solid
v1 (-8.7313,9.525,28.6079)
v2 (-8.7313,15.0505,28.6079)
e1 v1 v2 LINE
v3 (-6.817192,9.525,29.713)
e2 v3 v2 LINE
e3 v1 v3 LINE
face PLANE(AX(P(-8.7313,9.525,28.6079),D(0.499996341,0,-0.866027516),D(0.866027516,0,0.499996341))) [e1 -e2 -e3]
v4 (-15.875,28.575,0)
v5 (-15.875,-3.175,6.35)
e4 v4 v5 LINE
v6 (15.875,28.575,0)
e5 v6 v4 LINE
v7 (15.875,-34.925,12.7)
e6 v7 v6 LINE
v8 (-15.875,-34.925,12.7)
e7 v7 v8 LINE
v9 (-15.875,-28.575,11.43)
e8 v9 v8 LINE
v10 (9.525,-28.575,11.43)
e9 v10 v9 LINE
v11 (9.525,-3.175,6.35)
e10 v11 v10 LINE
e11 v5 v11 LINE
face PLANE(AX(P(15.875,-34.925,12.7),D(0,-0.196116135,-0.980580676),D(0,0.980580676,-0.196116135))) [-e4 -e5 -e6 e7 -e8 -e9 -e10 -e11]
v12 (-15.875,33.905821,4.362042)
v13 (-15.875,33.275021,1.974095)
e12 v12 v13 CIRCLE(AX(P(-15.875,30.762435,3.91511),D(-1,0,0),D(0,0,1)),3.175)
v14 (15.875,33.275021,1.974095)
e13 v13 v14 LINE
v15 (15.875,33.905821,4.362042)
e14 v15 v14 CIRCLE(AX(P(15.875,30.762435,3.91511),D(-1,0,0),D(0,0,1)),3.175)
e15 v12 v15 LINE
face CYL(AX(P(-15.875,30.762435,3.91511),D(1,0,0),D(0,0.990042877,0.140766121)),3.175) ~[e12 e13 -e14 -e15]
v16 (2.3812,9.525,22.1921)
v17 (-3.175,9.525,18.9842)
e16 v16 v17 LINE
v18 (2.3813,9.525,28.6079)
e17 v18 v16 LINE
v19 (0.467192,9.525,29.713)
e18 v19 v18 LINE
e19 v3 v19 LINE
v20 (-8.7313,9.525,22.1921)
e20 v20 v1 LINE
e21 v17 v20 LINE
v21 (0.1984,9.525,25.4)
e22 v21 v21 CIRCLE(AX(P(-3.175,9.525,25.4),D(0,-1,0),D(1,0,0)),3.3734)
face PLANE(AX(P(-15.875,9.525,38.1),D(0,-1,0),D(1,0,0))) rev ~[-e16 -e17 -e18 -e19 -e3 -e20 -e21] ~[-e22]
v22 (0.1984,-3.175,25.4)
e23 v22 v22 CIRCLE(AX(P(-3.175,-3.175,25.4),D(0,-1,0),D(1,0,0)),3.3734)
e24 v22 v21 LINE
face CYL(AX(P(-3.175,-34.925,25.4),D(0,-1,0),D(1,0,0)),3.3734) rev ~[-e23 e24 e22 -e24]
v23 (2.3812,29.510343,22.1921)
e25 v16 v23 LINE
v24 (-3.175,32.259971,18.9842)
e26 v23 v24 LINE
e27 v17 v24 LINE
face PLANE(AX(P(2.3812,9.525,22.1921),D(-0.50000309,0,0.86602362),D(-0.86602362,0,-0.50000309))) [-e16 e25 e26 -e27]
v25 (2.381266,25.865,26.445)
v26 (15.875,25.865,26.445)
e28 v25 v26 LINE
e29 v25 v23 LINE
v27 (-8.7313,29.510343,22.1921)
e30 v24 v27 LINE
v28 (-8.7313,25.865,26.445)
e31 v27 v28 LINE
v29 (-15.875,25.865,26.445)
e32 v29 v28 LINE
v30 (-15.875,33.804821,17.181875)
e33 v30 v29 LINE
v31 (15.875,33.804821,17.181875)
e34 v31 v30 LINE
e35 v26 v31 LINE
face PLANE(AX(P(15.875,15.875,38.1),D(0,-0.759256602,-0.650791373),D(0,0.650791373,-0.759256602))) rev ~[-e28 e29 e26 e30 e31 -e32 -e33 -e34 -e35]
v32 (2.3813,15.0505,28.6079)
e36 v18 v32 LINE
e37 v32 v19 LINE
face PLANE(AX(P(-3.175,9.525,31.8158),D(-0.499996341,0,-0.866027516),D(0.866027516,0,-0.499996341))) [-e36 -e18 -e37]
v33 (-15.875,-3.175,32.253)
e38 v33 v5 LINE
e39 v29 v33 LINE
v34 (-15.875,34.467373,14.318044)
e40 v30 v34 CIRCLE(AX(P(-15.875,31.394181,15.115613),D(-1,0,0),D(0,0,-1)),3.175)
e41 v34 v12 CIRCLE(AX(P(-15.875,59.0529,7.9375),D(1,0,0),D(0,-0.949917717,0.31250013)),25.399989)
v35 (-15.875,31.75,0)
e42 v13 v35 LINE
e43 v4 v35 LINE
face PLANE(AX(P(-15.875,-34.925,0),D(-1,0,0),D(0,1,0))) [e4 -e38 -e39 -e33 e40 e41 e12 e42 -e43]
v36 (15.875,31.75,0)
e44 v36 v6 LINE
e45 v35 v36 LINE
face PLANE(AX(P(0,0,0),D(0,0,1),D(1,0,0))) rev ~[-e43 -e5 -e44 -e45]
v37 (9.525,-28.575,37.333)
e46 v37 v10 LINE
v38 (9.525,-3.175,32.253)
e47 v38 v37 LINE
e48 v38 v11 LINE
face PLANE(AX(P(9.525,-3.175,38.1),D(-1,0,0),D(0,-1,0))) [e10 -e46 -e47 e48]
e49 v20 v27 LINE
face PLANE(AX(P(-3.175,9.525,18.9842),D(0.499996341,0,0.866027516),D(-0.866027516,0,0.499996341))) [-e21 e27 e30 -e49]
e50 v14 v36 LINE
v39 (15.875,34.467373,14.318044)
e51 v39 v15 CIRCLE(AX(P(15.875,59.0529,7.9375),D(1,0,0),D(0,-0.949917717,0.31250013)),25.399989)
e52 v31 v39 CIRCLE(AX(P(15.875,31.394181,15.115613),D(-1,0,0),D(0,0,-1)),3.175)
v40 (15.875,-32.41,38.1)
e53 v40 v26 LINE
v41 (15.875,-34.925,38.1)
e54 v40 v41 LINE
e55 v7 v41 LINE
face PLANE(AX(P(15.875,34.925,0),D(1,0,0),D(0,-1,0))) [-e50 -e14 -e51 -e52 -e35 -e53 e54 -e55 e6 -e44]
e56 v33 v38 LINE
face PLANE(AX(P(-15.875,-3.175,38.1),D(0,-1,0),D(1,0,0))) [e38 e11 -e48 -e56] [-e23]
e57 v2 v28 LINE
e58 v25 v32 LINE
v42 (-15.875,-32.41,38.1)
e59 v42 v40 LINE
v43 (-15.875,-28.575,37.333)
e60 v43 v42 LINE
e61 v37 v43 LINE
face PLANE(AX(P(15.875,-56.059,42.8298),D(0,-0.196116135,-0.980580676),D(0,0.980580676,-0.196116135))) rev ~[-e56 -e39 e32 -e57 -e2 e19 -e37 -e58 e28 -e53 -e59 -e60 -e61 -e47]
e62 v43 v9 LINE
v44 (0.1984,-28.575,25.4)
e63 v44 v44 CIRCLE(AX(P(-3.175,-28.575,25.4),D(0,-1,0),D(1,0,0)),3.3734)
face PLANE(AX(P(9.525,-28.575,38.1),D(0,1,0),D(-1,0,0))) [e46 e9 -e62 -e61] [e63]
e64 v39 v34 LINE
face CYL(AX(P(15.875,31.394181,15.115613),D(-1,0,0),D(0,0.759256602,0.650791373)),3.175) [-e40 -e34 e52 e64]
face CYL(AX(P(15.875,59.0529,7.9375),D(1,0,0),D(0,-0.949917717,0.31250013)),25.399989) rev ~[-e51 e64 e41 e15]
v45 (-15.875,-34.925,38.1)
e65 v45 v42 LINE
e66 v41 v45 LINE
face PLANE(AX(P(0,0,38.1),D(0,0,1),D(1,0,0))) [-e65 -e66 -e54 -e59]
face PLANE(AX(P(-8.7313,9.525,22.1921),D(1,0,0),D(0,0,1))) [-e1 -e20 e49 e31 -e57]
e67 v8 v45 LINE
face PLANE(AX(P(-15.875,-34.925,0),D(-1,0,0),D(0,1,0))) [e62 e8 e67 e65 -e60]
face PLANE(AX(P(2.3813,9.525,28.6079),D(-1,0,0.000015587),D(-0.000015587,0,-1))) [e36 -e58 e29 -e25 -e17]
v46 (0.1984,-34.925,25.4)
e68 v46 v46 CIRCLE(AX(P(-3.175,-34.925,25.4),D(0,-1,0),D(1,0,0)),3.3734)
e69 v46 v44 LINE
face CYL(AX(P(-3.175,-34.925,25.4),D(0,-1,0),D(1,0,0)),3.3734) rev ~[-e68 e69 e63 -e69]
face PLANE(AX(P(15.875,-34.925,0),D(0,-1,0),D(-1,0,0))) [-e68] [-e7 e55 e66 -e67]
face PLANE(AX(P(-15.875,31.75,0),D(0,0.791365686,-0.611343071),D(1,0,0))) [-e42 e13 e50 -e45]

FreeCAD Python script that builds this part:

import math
import FreeCAD as App
import Part
import Sketcher
Q = App.Units.Quantity


def edges_at(feature, points):
    """Names of the edges that pass closest to the given points."""
    edges = feature.Shape.Edges
    near = lambda p: min(range(len(edges)), key=lambda i: edges[i].distToShape(Part.Vertex(*p))[0])
    return sorted({f"Edge{near(p) + 1}" for p in points})


def add_polygon(sketch, points):
    """Adds a closed chain of lines whose ends are joined by coincident constraints."""
    first, n = sketch.GeometryCount, len(points)
    for a, b in zip(points, points[1:] + points[:1]):
        sketch.addGeometry(Part.LineSegment(App.Vector(*a, 0), App.Vector(*b, 0)), False)
    for i in range(n):
        sketch.addConstraint(Sketcher.Constraint("Coincident", first + i, 2, first + (i + 1) % n, 1))

doc = App.newDocument("Part")
body = doc.addObject("PartDesign::Body", "Body")

sketch1 = body.newObject("Sketcher::SketchObject", "Sketch")
sketch1.AttachmentSupport = (doc.getObject("XY_Plane"), [""])
sketch1.MapMode = "FlatFace"
add_polygon(sketch1, [(-16, -35), (16, -35), (16, 35), (-16, 35)])
sketch1.addConstraint([
    Sketcher.Constraint("Horizontal", 0),
    Sketcher.Constraint("Vertical", 1),
    Sketcher.Constraint("Horizontal", 2),
    Sketcher.Constraint("Vertical", 3),
    Sketcher.Constraint("Symmetric", 0, 2, 2, 2, -1, 1),
    Sketcher.Constraint("DistanceX", 0, 1, 0, 2, Q("1.25 in")),
    Sketcher.Constraint("DistanceY", 1, 1, 1, 2, Q("2.75 in")),
])
pad1 = body.newObject("PartDesign::Pad", "Pad")
pad1.Profile = sketch1
pad1.Length = Q("1.5 in")

sketch2 = body.newObject("Sketcher::SketchObject", "Sketch001")
sketch2.AttachmentSupport = (doc.getObject("XY_Plane"), [""])
sketch2.MapMode = "FlatFace"
sketch2.AttachmentOffset = App.Placement(App.Vector(0, 0, 1.5 * 25.4), App.Rotation())
add_polygon(sketch2, [(-16, -29), (10, -29), (10, -3), (-16, -3)])
sketch2.addConstraint([
    Sketcher.Constraint("Horizontal", 0),
    Sketcher.Constraint("Vertical", 1),
    Sketcher.Constraint("Horizontal", 2),
    Sketcher.Constraint("Vertical", 3),
    Sketcher.Constraint("Equal", 2, 1),
    Sketcher.Constraint("DistanceX", 0, 1, 0, 2, Q("1 in")),
    Sketcher.Constraint("DistanceX", -1, 1, 0, 2, Q("0.375 in")),
    Sketcher.Constraint("DistanceY", 0, 2, -1, 1, Q("1.125 in")),
])
pocket1 = body.newObject("PartDesign::Pocket", "Pocket")
pocket1.Profile = sketch2
pocket1.Type = "ThroughAll"

sketch3 = body.newObject("Sketcher::SketchObject", "Sketch002")
sketch3.AttachmentSupport = (doc.getObject("YZ_Plane"), [""])
sketch3.MapMode = "FlatFace"
sketch3.AttachmentOffset = App.Placement(App.Vector(0, 0, 0.625 * 25.4), App.Rotation())
add_polygon(sketch3, [(35, 16), (35, 38), (16, 38)])
sketch3.addGeometry(Part.LineSegment(App.Vector(35, 0, 0), App.Vector(35, 16, 0)), False)
sketch3.addGeometry(Part.ArcOfCircle(Part.Circle(App.Vector(59, 8, 0), App.Vector(0, 0, 1), 25), math.radians(162), math.radians(198)), False)
sketch3.addConstraint([
    Sketcher.Constraint("Coincident", 3, 1, 4, 2),
    Sketcher.Constraint("Coincident", 4, 1, 3, 2),
    Sketcher.Constraint("Vertical", 0),
    Sketcher.Constraint("Horizontal", 1),
    Sketcher.Constraint("Vertical", 3),
    Sketcher.Constraint("Coincident", 4, 1, 2, 2),
    Sketcher.Constraint("PointOnObject", 3, 1, -1),
    Sketcher.Constraint("Radius", 4, Q("1 in")),
    Sketcher.Constraint("DistanceX", 1, 2, 1, 1, Q("0.75 in")),
    Sketcher.Constraint("DistanceY", 3, 1, 3, 2, Q("0.625 in")),
    Sketcher.Constraint("DistanceX", -1, 1, 1, 2, Q("0.625 in")),
    Sketcher.Constraint("DistanceY", -1, 1, 0, 2, Q("1.5 in")),
])
pocket2 = body.newObject("PartDesign::Pocket", "Pocket001")
pocket2.Profile = sketch3
pocket2.Type = "ThroughAll"

sketch4 = body.newObject("Sketcher::SketchObject", "Sketch003")
sketch4.AttachmentSupport = (doc.getObject("XZ_Plane"), [""])
sketch4.MapMode = "FlatFace"
sketch4.AttachmentOffset = App.Placement(App.Vector(0, 0, 1.375 * 25.4), App.Rotation())
sketch4.addGeometry(Part.Circle(App.Vector(-3.2, 25.4, 0), App.Vector(0, 0, 1), 3.4), False)
sketch4.addConstraint([
    Sketcher.Constraint("Diameter", 0, Q("0.265622 in")),
    Sketcher.Constraint("DistanceY", -1, 1, 0, 3, Q("1 in")),
    Sketcher.Constraint("DistanceX", 0, 3, -1, 1, Q("0.125 in")),
])
pocket3 = body.newObject("PartDesign::Pocket", "Pocket002")
pocket3.Profile = sketch4
pocket3.Type = "ThroughAll"

sketch5 = body.newObject("Sketcher::SketchObject", "Sketch004")
sketch5.AttachmentSupport = (doc.getObject("XZ_Plane"), [""])
sketch5.MapMode = "FlatFace"
sketch5.AttachmentOffset = App.Placement(App.Vector(0, 0, -0.375 * 25.4), App.Rotation())
add_polygon(sketch5, [(-3, 32), (-9, 29), (-9, 22), (-3, 19), (2, 22), (2, 29)])
sketch5.addConstraint([
    Sketcher.Constraint("Vertical", 1),
    Sketcher.Constraint("Vertical", 4),
    Sketcher.Constraint("Parallel", 0, 3),
    Sketcher.Constraint("Parallel", 2, 5),
    Sketcher.Constraint("Horizontal", 1, 2, 3, 2),
    Sketcher.Constraint("Horizontal", 0, 2, 4, 2),
    Sketcher.Constraint("Vertical", 2, 2, 5, 2),
    Sketcher.Constraint("Angle", 0, Q("-150.0002 deg")),
    Sketcher.Constraint("DistanceX", 1, 2, 3, 2, Q("0.4375 in")),
    Sketcher.Constraint("DistanceY", 1, 2, 1, 1, Q("0.2526 in")),
    Sketcher.Constraint("DistanceX", 0, 2, -1, 1, Q("0.343752 in")),
    Sketcher.Constraint("DistanceY", -1, 1, 0, 2, Q("1.1263 in")),
])
pocket4 = body.newObject("PartDesign::Pocket", "Pocket003")
pocket4.Profile = sketch5
pocket4.Length = Q("1.5 in")
doc.recompute()

fillet = body.newObject("PartDesign::Fillet", "Fillet")
fillet.Base = (pocket4, edges_at(pocket4, [(0, 34.925, 15.875)]))
fillet.Radius = Q("0.125 in")
doc.recompute()

chamfer = body.newObject("PartDesign::Chamfer", "Chamfer")
chamfer.Base = (fillet, edges_at(fillet, [(0, 34.925, 0)]))
chamfer.Size = Q("0.125 in")
doc.recompute()

fillet2 = body.newObject("PartDesign::Fillet", "Fillet001")
fillet2.Base = (chamfer, edges_at(chamfer, [(0, 34.123, 3.072)]))
fillet2.Radius = Q("0.125 in")

sketch6 = body.newObject("Sketcher::SketchObject", "Sketch005")
sketch6.AttachmentSupport = (doc.getObject("YZ_Plane"), [""])
sketch6.MapMode = "FlatFace"
sketch6.AttachmentOffset = App.Placement(App.Vector(0, 0, 0.625 * 25.4), App.Rotation())
add_polygon(sketch6, [(29, 0), (-35, 13), (-35, 0)])
add_polygon(sketch6, [(-51, 71), (-56, 43), (72, 17), (77, 45)])
sketch6.addConstraint([
    Sketcher.Constraint("Vertical", 1),
    Sketcher.Constraint("Horizontal", 2),
    Sketcher.Constraint("PointOnObject", 1, 2, -1),
    Sketcher.Constraint("Perpendicular", 0, 3),
    Sketcher.Constraint("Perpendicular", 3, 4),
    Sketcher.Constraint("Perpendicular", 4, 5),
    Sketcher.Constraint("Perpendicular", 5, 6),
    Sketcher.Constraint("DistanceX", 2, 1, 2, 2, Q("2.5 in")),
    Sketcher.Constraint("DistanceY", 1, 2, 1, 1, Q("0.5 in")),
    Sketcher.Constraint("DistanceX", 0, 2, -1, 1, Q("1.375 in")),
    Sketcher.Constraint("Distance", 3, Q("1.1159 in")),
    Sketcher.Constraint("Distance", 4, Q("5.1244 in")),
    Sketcher.Constraint("DistanceX", 6, 2, -1, 1, Q("1.9882 in")),
    Sketcher.Constraint("DistanceY", -1, 1, 3, 2, 42.8298),
])
pocket5 = body.newObject("PartDesign::Pocket", "Pocket004")
pocket5.Profile = sketch6
pocket5.Type = "ThroughAll"

doc.recompute()
